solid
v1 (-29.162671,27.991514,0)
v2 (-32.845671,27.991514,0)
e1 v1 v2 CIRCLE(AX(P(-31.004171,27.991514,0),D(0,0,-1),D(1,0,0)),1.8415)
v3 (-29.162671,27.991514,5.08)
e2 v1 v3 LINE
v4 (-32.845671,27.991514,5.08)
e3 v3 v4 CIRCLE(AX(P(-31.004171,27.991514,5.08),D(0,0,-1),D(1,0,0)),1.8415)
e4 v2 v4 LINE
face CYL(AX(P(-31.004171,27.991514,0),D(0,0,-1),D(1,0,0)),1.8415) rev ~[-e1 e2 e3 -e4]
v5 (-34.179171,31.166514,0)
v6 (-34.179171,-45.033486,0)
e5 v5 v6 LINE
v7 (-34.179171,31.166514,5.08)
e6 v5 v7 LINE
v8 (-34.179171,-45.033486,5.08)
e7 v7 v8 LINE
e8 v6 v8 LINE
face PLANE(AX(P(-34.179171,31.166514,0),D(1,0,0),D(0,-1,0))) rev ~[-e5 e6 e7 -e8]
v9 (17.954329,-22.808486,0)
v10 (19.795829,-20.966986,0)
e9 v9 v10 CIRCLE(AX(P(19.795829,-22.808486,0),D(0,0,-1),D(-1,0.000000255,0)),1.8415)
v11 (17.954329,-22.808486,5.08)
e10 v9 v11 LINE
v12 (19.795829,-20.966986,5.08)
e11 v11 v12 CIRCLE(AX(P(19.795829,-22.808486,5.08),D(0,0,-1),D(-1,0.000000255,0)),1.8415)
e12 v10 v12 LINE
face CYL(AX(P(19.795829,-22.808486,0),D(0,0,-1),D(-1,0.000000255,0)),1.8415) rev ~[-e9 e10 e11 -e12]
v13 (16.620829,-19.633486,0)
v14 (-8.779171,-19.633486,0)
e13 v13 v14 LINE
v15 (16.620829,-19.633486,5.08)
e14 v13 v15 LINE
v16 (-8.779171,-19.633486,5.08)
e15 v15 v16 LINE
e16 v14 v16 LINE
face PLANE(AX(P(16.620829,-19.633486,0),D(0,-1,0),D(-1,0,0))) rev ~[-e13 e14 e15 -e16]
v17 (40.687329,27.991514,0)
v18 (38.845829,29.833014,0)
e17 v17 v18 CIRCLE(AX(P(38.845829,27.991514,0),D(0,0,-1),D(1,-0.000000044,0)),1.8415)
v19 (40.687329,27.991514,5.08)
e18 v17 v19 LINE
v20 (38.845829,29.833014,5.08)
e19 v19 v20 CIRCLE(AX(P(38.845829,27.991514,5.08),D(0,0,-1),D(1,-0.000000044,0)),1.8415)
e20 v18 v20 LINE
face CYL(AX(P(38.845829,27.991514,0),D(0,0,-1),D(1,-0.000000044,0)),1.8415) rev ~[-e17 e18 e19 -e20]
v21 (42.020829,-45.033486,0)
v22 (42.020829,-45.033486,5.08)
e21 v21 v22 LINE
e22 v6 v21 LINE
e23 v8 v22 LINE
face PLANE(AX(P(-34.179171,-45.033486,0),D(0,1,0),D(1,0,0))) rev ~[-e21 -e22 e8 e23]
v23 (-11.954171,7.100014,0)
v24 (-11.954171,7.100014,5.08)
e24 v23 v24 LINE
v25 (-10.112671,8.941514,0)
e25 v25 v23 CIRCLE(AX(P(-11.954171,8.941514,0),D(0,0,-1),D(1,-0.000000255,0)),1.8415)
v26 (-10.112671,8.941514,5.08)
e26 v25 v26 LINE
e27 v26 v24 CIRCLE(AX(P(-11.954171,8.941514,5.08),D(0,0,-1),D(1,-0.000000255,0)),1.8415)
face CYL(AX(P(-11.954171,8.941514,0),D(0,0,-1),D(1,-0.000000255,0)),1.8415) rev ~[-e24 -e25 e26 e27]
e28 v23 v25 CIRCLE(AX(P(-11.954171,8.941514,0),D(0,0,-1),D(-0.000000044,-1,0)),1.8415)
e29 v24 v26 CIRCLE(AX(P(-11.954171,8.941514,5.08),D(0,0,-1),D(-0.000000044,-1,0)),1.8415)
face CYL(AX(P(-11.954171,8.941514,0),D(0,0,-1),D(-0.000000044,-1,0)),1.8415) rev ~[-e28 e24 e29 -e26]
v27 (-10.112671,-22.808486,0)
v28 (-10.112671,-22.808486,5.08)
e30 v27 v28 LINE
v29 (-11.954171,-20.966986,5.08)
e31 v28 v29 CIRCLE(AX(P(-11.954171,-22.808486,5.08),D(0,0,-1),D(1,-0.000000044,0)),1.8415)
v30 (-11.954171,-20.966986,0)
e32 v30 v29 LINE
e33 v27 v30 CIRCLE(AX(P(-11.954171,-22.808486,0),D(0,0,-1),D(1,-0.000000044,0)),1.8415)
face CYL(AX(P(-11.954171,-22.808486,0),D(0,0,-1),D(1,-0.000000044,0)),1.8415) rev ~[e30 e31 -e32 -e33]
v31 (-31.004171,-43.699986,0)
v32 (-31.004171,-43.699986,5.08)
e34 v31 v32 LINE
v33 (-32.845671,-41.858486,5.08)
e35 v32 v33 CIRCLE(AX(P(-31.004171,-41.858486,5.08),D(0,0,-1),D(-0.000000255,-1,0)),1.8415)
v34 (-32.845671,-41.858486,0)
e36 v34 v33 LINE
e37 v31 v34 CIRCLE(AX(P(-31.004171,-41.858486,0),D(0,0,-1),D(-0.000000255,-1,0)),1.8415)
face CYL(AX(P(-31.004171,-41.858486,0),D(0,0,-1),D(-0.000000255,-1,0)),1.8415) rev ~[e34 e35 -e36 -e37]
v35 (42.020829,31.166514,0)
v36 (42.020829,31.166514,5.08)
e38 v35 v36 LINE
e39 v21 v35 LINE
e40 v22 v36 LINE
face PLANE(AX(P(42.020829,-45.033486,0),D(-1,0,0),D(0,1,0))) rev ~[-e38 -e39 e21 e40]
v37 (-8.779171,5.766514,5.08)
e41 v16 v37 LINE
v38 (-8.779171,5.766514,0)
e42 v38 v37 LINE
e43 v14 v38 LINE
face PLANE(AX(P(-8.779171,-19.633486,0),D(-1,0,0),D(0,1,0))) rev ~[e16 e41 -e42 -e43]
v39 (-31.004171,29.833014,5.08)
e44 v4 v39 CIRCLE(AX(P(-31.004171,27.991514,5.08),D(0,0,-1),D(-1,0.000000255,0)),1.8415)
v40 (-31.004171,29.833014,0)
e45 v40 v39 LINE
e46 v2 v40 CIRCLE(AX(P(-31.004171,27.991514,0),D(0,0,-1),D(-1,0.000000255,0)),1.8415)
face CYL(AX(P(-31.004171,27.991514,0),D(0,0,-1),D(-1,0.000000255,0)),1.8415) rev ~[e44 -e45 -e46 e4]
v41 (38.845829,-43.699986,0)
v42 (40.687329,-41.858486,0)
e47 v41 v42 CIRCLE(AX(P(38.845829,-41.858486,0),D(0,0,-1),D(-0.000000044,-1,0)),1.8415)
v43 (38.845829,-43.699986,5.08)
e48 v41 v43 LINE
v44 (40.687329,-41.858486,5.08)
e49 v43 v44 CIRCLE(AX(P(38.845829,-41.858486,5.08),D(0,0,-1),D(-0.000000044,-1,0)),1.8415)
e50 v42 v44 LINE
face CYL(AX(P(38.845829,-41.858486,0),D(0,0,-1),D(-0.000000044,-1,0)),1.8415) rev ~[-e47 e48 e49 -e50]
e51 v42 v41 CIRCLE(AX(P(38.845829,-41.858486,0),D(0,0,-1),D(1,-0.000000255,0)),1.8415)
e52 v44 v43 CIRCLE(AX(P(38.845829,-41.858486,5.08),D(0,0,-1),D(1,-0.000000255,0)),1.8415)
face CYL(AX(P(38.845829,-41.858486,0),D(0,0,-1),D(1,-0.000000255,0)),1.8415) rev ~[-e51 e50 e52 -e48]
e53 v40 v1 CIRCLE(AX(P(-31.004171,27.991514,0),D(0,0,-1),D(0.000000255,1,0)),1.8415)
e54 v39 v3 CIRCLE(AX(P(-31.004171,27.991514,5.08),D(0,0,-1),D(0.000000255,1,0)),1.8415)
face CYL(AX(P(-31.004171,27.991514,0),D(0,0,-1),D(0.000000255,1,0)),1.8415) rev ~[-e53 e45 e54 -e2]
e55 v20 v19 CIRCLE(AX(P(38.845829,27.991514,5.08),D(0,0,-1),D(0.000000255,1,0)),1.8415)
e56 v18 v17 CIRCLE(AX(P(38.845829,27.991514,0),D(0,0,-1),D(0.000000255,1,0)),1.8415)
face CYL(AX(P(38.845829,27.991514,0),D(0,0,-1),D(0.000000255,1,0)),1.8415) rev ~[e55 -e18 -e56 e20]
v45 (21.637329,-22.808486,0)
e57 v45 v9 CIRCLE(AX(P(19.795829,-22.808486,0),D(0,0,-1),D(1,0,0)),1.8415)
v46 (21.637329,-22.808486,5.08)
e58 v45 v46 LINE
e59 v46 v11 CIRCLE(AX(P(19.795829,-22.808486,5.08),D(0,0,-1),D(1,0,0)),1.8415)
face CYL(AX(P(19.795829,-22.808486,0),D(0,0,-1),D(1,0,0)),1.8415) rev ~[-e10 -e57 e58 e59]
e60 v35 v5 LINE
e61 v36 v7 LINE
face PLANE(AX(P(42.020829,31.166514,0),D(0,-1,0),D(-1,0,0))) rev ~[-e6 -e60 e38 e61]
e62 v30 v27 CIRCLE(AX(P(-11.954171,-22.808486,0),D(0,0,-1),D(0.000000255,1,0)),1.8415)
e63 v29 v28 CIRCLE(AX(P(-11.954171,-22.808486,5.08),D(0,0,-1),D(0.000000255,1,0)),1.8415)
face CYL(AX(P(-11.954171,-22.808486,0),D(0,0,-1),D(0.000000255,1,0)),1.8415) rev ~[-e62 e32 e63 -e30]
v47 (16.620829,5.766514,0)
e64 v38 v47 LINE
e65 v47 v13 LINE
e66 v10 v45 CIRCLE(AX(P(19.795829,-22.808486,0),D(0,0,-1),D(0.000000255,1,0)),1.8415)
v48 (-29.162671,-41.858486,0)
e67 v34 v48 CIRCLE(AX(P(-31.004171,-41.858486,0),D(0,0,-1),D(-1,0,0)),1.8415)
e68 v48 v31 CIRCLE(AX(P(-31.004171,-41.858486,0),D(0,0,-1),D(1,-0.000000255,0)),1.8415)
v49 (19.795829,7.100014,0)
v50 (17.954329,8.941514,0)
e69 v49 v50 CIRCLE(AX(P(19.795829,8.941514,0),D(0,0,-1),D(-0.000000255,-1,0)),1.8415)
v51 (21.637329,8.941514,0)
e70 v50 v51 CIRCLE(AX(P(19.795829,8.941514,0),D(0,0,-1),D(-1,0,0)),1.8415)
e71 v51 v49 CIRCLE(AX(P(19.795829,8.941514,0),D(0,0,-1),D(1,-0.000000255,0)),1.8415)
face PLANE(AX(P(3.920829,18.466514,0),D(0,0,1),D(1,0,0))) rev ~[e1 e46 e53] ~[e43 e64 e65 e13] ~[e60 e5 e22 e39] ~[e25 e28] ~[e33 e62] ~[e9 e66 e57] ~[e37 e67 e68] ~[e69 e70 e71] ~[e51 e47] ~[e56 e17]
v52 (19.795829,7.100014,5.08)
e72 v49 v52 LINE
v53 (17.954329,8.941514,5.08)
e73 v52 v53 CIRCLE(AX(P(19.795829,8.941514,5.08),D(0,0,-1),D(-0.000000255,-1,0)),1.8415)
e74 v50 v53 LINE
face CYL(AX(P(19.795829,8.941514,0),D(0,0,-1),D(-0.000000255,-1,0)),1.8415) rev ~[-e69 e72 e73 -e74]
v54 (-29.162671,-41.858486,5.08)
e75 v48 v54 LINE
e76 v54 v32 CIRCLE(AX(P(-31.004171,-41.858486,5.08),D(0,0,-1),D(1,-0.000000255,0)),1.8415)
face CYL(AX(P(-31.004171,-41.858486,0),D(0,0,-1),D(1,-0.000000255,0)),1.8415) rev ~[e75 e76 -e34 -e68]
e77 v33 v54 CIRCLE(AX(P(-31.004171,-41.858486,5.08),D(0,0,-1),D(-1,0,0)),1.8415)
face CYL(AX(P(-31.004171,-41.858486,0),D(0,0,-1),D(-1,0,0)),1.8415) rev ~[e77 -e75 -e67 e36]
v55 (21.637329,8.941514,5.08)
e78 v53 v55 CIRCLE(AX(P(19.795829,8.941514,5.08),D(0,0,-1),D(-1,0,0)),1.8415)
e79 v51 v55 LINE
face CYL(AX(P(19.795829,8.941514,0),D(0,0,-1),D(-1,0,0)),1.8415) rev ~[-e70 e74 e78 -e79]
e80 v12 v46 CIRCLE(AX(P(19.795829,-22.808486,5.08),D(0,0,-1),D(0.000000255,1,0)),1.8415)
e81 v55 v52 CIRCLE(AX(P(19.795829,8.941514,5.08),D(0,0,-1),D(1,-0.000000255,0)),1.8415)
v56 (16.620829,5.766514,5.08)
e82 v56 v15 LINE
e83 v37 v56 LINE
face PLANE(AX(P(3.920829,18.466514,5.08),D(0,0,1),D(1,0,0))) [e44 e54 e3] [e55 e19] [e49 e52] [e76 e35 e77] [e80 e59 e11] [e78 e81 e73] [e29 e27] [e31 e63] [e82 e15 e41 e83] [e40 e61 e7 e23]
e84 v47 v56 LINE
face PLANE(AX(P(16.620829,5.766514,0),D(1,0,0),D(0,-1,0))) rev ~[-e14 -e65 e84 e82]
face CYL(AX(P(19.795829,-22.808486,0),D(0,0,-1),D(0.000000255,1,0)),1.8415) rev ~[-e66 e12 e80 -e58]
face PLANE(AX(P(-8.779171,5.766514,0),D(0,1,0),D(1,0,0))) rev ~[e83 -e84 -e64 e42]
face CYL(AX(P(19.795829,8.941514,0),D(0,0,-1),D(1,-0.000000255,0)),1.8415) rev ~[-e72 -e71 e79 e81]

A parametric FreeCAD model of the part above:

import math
import FreeCAD as App
import Part
import Sketcher
Q = App.Units.Quantity


def add_polygon(sketch, points):
    """Adds a closed chain of lines whose ends are joined by coincident constraints."""
    first, n = sketch.GeometryCount, len(points)
    for a, b in zip(points, points[1:] + points[:1]):
        sketch.addGeometry(Part.LineSegment(App.Vector(*a, 0), App.Vector(*b, 0)), False)
    for i in range(n):
        sketch.addConstraint(Sketcher.Constraint("Coincident", first + i, 2, first + (i + 1) % n, 1))

doc = App.newDocument("Part")
params = doc.addObject("Spreadsheet::Sheet", "Params")
for row, (alias, value) in enumerate([
    ("sketch1_width", "3 in"),
    ("sketch1_width2", "1 in"),
    ("pad1_length", "0.2 in"),
], start=1):
    params.set(f"A{row}", alias)
    params.set(f"B{row}", "=" + value)
    params.setAlias(f"B{row}", alias)

body = doc.addObject("PartDesign::Body", "Body")

sketch1 = body.newObject("Sketcher::SketchObject", "Sketch")
sketch1.AttachmentSupport = (doc.getObject("XY_Plane"), [""])
sketch1.MapMode = "FlatFace"
add_polygon(sketch1, [(42.020829, 31.166514), (-34.179171, 31.166514), (-34.179171, -45.033486), (42.020829, -45.033486)])
sketch1.addGeometry(Part.ArcOfCircle(Part.Circle(App.Vector(38.845829, -41.858486, 0), App.Vector(0, 0, 1), 1.8415), math.radians(0.000003), math.radians(269.999997)), False)
sketch1.addGeometry(Part.ArcOfCircle(Part.Circle(App.Vector(38.845829, -41.858486, 0), App.Vector(0, 0, 1), 1.8415), math.radians(-89.999985), math.radians(-0.000015)), False)
sketch1.addGeometry(Part.ArcOfCircle(Part.Circle(App.Vector(-31.004171, -41.858486, 0), App.Vector(0, 0, 1), 1.8415), math.radians(0), math.radians(180)), False)
sketch1.addGeometry(Part.ArcOfCircle(Part.Circle(App.Vector(-31.004171, -41.858486, 0), App.Vector(0, 0, 1), 1.8415), math.radians(-89.999985), math.radians(-0.000015)), False)
sketch1.addGeometry(Part.ArcOfCircle(Part.Circle(App.Vector(-31.004171, -41.858486, 0), App.Vector(0, 0, 1), 1.8415), math.radians(-179.999985), math.radians(-90.000015)), False)
sketch1.addGeometry(Part.ArcOfCircle(Part.Circle(App.Vector(-31.004171, 27.991514, 0), App.Vector(0, 0, 1), 1.8415), math.radians(0.000015), math.radians(89.999985)), False)
sketch1.addGeometry(Part.ArcOfCircle(Part.Circle(App.Vector(-31.004171, 27.991514, 0), App.Vector(0, 0, 1), 1.8415), math.radians(180), math.radians(360)), False)
sketch1.addGeometry(Part.ArcOfCircle(Part.Circle(App.Vector(-31.004171, 27.991514, 0), App.Vector(0, 0, 1), 1.8415), math.radians(90.000015), math.radians(179.999985)), False)
sketch1.addGeometry(Part.ArcOfCircle(Part.Circle(App.Vector(-11.954171, -22.808486, 0), App.Vector(0, 0, 1), 1.8415), math.radians(90.000003), math.radians(359.999997)), False)
sketch1.addGeometry(Part.ArcOfCircle(Part.Circle(App.Vector(-11.954171, -22.808486, 0), App.Vector(0, 0, 1), 1.8415), math.radians(0.000015), math.radians(89.999985)), False)
add_polygon(sketch1, [(16.620829, 5.766514), (16.620829, -19.633486), (-8.779171, -19.633486), (-8.779171, 5.766514)])
sketch1.addGeometry(Part.ArcOfCircle(Part.Circle(App.Vector(19.795829, -22.808486, 0), App.Vector(0, 0, 1), 1.8415), math.radians(180), math.radians(360)), False)
sketch1.addGeometry(Part.ArcOfCircle(Part.Circle(App.Vector(19.795829, -22.808486, 0), App.Vector(0, 0, 1), 1.8415), math.radians(90.000015), math.radians(179.999985)), False)
sketch1.addGeometry(Part.ArcOfCircle(Part.Circle(App.Vector(19.795829, -22.808486, 0), App.Vector(0, 0, 1), 1.8415), math.radians(0.000015), math.radians(89.999985)), False)
sketch1.addGeometry(Part.ArcOfCircle(Part.Circle(App.Vector(-11.954171, 8.941514, 0), App.Vector(0, 0, 1), 1.8415), math.radians(0.000003), math.radians(269.999997)), False)
sketch1.addGeometry(Part.ArcOfCircle(Part.Circle(App.Vector(-11.954171, 8.941514, 0), App.Vector(0, 0, 1), 1.8415), math.radians(-89.999985), math.radians(-0.000015)), False)
sketch1.addGeometry(Part.ArcOfCircle(Part.Circle(App.Vector(19.795829, 8.941514, 0), App.Vector(0, 0, 1), 1.8415), math.radians(-89.999985), math.radians(-0.000015)), False)
sketch1.addGeometry(Part.ArcOfCircle(Part.Circle(App.Vector(19.795829, 8.941514, 0), App.Vector(0, 0, 1), 1.8415), math.radians(-179.999985), math.radians(-90.000015)), False)
sketch1.addGeometry(Part.ArcOfCircle(Part.Circle(App.Vector(19.795829, 8.941514, 0), App.Vector(0, 0, 1), 1.8415), math.radians(0), math.radians(180)), False)
sketch1.addGeometry(Part.ArcOfCircle(Part.Circle(App.Vector(38.845829, 27.991514, 0), App.Vector(0, 0, 1), 1.8415), math.radians(90.000003), math.radians(359.999997)), False)
sketch1.addGeometry(Part.ArcOfCircle(Part.Circle(App.Vector(38.845829, 27.991514, 0), App.Vector(0, 0, 1), 1.8415), math.radians(0.000015), math.radians(89.999985)), False)
sketch1.addConstraint(Sketcher.Constraint("Tangent", 4, 1, 5, 2))
sketch1.addConstraint(Sketcher.Constraint("Coincident", 5, 1, 4, 2))
sketch1.addConstraint(Sketcher.Constraint("Tangent", 6, 1, 7, 2))
sketch1.addConstraint(Sketcher.Constraint("Tangent", 7, 1, 8, 2))
sketch1.addConstraint(Sketcher.Constraint("Tangent", 8, 1, 6, 2))
sketch1.addConstraint(Sketcher.Constraint("Tangent", 9, 1, 10, 2))
sketch1.addConstraint(Sketcher.Constraint("Tangent", 10, 1, 11, 2))
sketch1.addConstraint(Sketcher.Constraint("Tangent", 11, 1, 9, 2))
sketch1.addConstraint(Sketcher.Constraint("Tangent", 12, 1, 13, 2))
sketch1.addConstraint(Sketcher.Constraint("Coincident", 13, 1, 12, 2))
sketch1.addConstraint(Sketcher.Constraint("Tangent", 18, 1, 19, 2))
sketch1.addConstraint(Sketcher.Constraint("Tangent", 19, 1, 20, 2))
sketch1.addConstraint(Sketcher.Constraint("Tangent", 20, 1, 18, 2))
sketch1.addConstraint(Sketcher.Constraint("Tangent", 21, 1, 22, 2))
sketch1.addConstraint(Sketcher.Constraint("Coincident", 22, 1, 21, 2))
sketch1.addConstraint(Sketcher.Constraint("Tangent", 23, 1, 24, 2))
sketch1.addConstraint(Sketcher.Constraint("Tangent", 24, 1, 25, 2))
sketch1.addConstraint(Sketcher.Constraint("Tangent", 25, 1, 23, 2))
sketch1.addConstraint(Sketcher.Constraint("Tangent", 26, 1, 27, 2))
sketch1.addConstraint(Sketcher.Constraint("Coincident", 27, 1, 26, 2))
sketch1.addConstraint(Sketcher.Constraint("Horizontal", 0))
sketch1.addConstraint(Sketcher.Constraint("Vertical", 1))
sketch1.addConstraint(Sketcher.Constraint("Horizontal", 2))
sketch1.addConstraint(Sketcher.Constraint("Vertical", 3))
sketch1.addConstraint(Sketcher.Constraint("Vertical", 14))
sketch1.addConstraint(Sketcher.Constraint("Horizontal", 15))
sketch1.addConstraint(Sketcher.Constraint("Vertical", 16))
sketch1.addConstraint(Sketcher.Constraint("Horizontal", 17))
sketch1.addConstraint(Sketcher.Constraint("Equal", 5, 6))
sketch1.addConstraint(Sketcher.Constraint("Equal", 8, 9))
sketch1.addConstraint(Sketcher.Constraint("Equal", 11, 12))
sketch1.addConstraint(Sketcher.Constraint("Equal", 13, 18))
sketch1.addConstraint(Sketcher.Constraint("Equal", 20, 21))
sketch1.addConstraint(Sketcher.Constraint("Equal", 22, 23))
sketch1.addConstraint(Sketcher.Constraint("Equal", 25, 26))
sketch1.addConstraint(Sketcher.Constraint("Horizontal", 5, 3, 6, 3))
sketch1.addConstraint(Sketcher.Constraint("Horizontal", 13, 3, 18, 3))
sketch1.addConstraint(Sketcher.Constraint("Horizontal", 22, 3, 23, 3))
sketch1.addConstraint(Sketcher.Constraint("Horizontal", 11, 3, 26, 3))
sketch1.addConstraint(Sketcher.Constraint("Horizontal", 8, 3, 4, 1))
sketch1.addConstraint(Sketcher.Constraint("Horizontal", 4, 1, 6, 1))
sketch1.addConstraint(Sketcher.Constraint("Horizontal", 6, 1, 8, 1))
sketch1.addConstraint(Sketcher.Constraint("Horizontal", 27, 3, 9, 1))
sketch1.addConstraint(Sketcher.Constraint("Horizontal", 9, 1, 10, 1))
sketch1.addConstraint(Sketcher.Constraint("Horizontal", 20, 3, 13, 1))
sketch1.addConstraint(Sketcher.Constraint("Horizontal", 13, 1, 18, 1))
sketch1.addConstraint(Sketcher.Constraint("Horizontal", 18, 1, 20, 1))
sketch1.addConstraint(Sketcher.Constraint("Horizontal", 25, 3, 21, 1))
sketch1.addConstraint(Sketcher.Constraint("Horizontal", 21, 1, 24, 1))
sketch1.addConstraint(Sketcher.Constraint("Horizontal", 24, 1, 25, 1))
sketch1.addConstraint(Sketcher.Constraint("Horizontal", 10, 1, 27, 1))
sketch1.addConstraint(Sketcher.Constraint("Vertical", 8, 3, 9, 3))
sketch1.addConstraint(Sketcher.Constraint("Vertical", 13, 3, 21, 3))
sketch1.addConstraint(Sketcher.Constraint("Vertical", 20, 3, 23, 3))
sketch1.addConstraint(Sketcher.Constraint("Vertical", 5, 3, 26, 3))
sketch1.addConstraint(Sketcher.Constraint("Vertical", 27, 3, 5, 1))
sketch1.addConstraint(Sketcher.Constraint("Vertical", 11, 3, 7, 1))
sketch1.addConstraint(Sketcher.Constraint("Vertical", 7, 1, 11, 1))
sketch1.addConstraint(Sketcher.Constraint("Vertical", 22, 3, 12, 1))
sketch1.addConstraint(Sketcher.Constraint("Vertical", 25, 3, 19, 1))
sketch1.addConstraint(Sketcher.Constraint("Vertical", 12, 1, 22, 1))
sketch1.addConstraint(Sketcher.Constraint("Vertical", 19, 1, 23, 1))
sketch1.addConstraint(Sketcher.Constraint("Vertical", 5, 1, 26, 1))
sketch1.addConstraint(Sketcher.Constraint("Equal", 2, 1))
sketch1.addConstraint(Sketcher.Constraint("Equal", 17, 14))
sketch1.addConstraint(Sketcher.Constraint("DistanceX", 0, 2, 0, 1, Q("3 in")))
sketch1.addConstraint(Sketcher.Constraint("DistanceX", 15, 2, 15, 1, Q("1 in")))
sketch1.addConstraint(Sketcher.Constraint("DistanceX", 12, 3, 5, 3, Q("2 in")))
sketch1.addConstraint(Sketcher.Constraint("DistanceY", 12, 3, 11, 3, Q("2 in")))
sketch1.addConstraint(Sketcher.Constraint("DistanceX", 8, 3, 18, 3, Q("2 in")))
sketch1.addConstraint(Sketcher.Constraint("Radius", 4, Q("0.0725 in")))
sketch1.addConstraint(Sketcher.Constraint("DistanceX", 6, 3, 5, 3, Q("2.75 in")))
sketch1.addConstraint(Sketcher.Constraint("DistanceY", 7, 3, 9, 3, Q("2.75 in")))
sketch1.addConstraint(Sketcher.Constraint("DistanceY", 21, 3, 11, 3, Q("0.75 in")))
sketch1.addConstraint(Sketcher.Constraint("DistanceX", 0, 2, 10, 3, Q("0.125 in")))
sketch1.addConstraint(Sketcher.Constraint("DistanceY", 10, 3, 0, 2, Q("0.125 in")))
sketch1.addConstraint(Sketcher.Constraint("DistanceX", 14, 2, 18, 3, Q("0.125 in")))
sketch1.addConstraint(Sketcher.Constraint("DistanceY", 18, 3, 14, 2, Q("0.125 in")))
sketch1.addConstraint(Sketcher.Constraint("DistanceX", -1, 1, 4, 3, Q("38.845829 mm")))
sketch1.addConstraint(Sketcher.Constraint("DistanceY", 4, 3, -1, 1, Q("41.858486 mm")))
sketch1.setExpression("Constraints[73]", "Params.sketch1_width")
sketch1.setExpression("Constraints[74]", "Params.sketch1_width2")
pad1 = body.newObject("PartDesign::Pad", "Pad")
pad1.Profile = sketch1
pad1.setExpression("Length", "Params.pad1_length")

doc.recompute()
